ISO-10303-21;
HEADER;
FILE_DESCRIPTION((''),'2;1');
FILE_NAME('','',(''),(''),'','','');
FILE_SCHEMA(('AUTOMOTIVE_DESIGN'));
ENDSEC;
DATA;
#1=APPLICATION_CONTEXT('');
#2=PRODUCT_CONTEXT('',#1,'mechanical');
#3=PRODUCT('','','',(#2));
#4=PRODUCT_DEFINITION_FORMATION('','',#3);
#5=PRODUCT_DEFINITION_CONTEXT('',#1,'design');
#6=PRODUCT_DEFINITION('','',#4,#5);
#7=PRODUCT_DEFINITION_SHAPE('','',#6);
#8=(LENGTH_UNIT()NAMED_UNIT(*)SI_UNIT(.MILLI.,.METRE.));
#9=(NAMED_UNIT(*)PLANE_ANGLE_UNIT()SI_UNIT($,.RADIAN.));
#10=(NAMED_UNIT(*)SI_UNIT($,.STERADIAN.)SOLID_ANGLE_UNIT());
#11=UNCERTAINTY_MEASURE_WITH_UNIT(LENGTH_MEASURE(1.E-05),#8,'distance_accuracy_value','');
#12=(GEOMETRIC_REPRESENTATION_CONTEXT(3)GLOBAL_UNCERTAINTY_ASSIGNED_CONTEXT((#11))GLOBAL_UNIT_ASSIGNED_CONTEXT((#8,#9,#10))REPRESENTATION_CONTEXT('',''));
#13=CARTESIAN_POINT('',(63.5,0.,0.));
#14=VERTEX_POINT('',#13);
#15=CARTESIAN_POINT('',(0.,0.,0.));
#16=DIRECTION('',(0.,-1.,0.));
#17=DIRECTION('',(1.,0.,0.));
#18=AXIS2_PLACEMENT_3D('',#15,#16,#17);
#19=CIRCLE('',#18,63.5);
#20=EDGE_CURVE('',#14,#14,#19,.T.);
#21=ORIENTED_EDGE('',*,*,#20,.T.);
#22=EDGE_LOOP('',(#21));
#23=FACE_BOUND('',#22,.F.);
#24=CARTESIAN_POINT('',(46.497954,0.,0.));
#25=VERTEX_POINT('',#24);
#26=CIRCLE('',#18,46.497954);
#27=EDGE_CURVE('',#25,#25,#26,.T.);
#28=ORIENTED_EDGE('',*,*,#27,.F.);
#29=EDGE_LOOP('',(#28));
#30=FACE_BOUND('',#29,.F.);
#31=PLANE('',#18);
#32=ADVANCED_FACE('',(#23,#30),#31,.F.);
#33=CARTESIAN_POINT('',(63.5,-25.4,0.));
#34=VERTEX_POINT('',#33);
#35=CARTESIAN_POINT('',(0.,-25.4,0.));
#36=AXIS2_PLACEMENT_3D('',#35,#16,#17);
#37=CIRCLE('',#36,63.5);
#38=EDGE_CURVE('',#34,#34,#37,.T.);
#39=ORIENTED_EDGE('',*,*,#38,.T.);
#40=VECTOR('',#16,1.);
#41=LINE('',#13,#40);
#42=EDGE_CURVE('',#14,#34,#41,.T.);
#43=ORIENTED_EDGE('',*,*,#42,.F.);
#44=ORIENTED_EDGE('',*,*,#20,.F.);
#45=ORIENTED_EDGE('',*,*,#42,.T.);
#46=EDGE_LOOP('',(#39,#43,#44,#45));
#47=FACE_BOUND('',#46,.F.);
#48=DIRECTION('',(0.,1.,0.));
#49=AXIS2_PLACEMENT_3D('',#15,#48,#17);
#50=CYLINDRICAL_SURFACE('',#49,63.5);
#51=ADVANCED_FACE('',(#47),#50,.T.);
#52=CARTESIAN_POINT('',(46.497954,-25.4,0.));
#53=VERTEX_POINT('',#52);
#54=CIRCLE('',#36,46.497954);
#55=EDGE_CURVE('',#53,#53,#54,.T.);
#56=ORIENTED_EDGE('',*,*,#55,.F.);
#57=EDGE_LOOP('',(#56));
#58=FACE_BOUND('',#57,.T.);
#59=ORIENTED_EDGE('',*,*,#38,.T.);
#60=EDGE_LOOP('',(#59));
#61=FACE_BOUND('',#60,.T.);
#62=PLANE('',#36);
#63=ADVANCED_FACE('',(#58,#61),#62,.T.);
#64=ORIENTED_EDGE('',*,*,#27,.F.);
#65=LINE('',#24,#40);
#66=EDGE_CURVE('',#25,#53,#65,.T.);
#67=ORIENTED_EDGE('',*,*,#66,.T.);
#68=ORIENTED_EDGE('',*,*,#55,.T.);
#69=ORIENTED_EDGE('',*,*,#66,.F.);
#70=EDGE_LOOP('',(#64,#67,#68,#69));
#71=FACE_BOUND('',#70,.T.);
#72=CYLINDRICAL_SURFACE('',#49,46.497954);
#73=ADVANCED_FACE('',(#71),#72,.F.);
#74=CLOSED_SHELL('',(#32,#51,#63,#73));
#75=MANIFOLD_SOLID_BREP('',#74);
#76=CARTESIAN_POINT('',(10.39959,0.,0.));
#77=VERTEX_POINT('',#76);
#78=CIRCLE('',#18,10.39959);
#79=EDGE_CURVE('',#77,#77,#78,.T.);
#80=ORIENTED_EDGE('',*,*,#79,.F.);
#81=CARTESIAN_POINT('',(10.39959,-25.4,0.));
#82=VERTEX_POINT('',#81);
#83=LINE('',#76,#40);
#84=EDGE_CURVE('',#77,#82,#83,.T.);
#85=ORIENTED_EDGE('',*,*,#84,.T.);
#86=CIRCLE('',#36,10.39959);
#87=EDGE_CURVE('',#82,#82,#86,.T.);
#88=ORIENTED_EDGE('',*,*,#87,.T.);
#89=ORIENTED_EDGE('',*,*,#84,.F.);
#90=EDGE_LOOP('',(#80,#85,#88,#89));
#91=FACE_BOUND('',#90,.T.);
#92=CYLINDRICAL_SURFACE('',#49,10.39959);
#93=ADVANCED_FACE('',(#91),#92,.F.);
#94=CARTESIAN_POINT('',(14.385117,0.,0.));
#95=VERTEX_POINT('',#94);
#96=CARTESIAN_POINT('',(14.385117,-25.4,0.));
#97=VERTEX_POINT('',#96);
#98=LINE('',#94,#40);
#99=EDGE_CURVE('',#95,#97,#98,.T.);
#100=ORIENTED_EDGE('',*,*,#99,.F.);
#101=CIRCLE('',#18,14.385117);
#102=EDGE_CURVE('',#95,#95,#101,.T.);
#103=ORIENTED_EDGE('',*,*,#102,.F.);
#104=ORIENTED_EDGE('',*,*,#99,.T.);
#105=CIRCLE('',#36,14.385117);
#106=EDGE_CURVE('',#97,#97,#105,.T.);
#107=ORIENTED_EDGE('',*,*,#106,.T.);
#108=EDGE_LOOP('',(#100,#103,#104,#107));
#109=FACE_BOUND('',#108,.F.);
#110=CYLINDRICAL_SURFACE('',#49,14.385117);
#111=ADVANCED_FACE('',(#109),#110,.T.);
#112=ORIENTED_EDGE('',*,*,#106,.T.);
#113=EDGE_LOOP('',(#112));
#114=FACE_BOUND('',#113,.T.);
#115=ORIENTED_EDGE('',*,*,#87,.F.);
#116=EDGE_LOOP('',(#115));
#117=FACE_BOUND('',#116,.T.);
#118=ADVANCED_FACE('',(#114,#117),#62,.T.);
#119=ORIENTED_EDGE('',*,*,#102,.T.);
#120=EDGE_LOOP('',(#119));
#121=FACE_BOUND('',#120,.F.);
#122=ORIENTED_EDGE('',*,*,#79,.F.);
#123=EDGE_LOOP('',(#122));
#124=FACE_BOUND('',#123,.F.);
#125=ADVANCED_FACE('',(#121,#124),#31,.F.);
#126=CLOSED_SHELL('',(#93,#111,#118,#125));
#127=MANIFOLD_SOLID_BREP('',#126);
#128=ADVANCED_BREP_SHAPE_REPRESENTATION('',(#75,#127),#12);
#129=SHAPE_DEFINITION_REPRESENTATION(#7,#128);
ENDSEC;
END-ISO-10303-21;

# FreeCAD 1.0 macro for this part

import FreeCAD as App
import Part
import Sketcher

V = App.Vector
Q = App.Units.Quantity

doc = App.newDocument("Part")
body = doc.addObject("PartDesign::Body", "Body")

sketch1 = doc.addObject("Sketcher::SketchObject", "Sketch")
body.addObject(sketch1)
sketch1.AttachmentSupport = (doc.XZ_Plane, [""])
sketch1.MapMode = "FlatFace"
sketch1.addGeometry(Part.Circle(V(0, 0, 0), V(0, 0, 1), 63.5), False)
sketch1.addGeometry(Part.Circle(V(0, 0, 0), V(0, 0, 1), 46.497954), False)
sketch1.addConstraint(Sketcher.Constraint("Coincident", 0, 3, -1, 1))
sketch1.addConstraint(Sketcher.Constraint("Coincident", 1, 3, -1, 1))
sketch1.addConstraint(Sketcher.Constraint("Diameter", 0, Q("5 in")))
sketch1.addConstraint(Sketcher.Constraint("Diameter", 1, Q("92.995908 mm")))
pad1 = doc.addObject("PartDesign::Pad", "Pad")
body.addObject(pad1)
pad1.Profile = sketch1
pad1.Length = Q("1 in")
body2 = doc.addObject("PartDesign::Body", "Body001")

sketch2 = doc.addObject("Sketcher::SketchObject", "Sketch001")
body2.addObject(sketch2)
sketch2.AttachmentSupport = (doc.getObject("XZ_Plane001"), [""])
sketch2.MapMode = "FlatFace"
sketch2.addGeometry(Part.Circle(V(0, 0, 0), V(0, 0, 1), 14.385117), False)
sketch2.addGeometry(Part.Circle(V(0, 0, 0), V(0, 0, 1), 10.39959), False)
sketch2.addConstraint(Sketcher.Constraint("Coincident", 0, 3, -1, 1))
sketch2.addConstraint(Sketcher.Constraint("Coincident", 1, 3, -1, 1))
sketch2.addConstraint(Sketcher.Constraint("Diameter", 1, Q("20.79918 mm")))
sketch2.addConstraint(Sketcher.Constraint("Diameter", 0, Q("28.770234 mm")))
pad2 = doc.addObject("PartDesign::Pad", "Pad001")
body2.addObject(pad2)
pad2.Profile = sketch2
pad2.Length = Q("1 in")

doc.recompute()
